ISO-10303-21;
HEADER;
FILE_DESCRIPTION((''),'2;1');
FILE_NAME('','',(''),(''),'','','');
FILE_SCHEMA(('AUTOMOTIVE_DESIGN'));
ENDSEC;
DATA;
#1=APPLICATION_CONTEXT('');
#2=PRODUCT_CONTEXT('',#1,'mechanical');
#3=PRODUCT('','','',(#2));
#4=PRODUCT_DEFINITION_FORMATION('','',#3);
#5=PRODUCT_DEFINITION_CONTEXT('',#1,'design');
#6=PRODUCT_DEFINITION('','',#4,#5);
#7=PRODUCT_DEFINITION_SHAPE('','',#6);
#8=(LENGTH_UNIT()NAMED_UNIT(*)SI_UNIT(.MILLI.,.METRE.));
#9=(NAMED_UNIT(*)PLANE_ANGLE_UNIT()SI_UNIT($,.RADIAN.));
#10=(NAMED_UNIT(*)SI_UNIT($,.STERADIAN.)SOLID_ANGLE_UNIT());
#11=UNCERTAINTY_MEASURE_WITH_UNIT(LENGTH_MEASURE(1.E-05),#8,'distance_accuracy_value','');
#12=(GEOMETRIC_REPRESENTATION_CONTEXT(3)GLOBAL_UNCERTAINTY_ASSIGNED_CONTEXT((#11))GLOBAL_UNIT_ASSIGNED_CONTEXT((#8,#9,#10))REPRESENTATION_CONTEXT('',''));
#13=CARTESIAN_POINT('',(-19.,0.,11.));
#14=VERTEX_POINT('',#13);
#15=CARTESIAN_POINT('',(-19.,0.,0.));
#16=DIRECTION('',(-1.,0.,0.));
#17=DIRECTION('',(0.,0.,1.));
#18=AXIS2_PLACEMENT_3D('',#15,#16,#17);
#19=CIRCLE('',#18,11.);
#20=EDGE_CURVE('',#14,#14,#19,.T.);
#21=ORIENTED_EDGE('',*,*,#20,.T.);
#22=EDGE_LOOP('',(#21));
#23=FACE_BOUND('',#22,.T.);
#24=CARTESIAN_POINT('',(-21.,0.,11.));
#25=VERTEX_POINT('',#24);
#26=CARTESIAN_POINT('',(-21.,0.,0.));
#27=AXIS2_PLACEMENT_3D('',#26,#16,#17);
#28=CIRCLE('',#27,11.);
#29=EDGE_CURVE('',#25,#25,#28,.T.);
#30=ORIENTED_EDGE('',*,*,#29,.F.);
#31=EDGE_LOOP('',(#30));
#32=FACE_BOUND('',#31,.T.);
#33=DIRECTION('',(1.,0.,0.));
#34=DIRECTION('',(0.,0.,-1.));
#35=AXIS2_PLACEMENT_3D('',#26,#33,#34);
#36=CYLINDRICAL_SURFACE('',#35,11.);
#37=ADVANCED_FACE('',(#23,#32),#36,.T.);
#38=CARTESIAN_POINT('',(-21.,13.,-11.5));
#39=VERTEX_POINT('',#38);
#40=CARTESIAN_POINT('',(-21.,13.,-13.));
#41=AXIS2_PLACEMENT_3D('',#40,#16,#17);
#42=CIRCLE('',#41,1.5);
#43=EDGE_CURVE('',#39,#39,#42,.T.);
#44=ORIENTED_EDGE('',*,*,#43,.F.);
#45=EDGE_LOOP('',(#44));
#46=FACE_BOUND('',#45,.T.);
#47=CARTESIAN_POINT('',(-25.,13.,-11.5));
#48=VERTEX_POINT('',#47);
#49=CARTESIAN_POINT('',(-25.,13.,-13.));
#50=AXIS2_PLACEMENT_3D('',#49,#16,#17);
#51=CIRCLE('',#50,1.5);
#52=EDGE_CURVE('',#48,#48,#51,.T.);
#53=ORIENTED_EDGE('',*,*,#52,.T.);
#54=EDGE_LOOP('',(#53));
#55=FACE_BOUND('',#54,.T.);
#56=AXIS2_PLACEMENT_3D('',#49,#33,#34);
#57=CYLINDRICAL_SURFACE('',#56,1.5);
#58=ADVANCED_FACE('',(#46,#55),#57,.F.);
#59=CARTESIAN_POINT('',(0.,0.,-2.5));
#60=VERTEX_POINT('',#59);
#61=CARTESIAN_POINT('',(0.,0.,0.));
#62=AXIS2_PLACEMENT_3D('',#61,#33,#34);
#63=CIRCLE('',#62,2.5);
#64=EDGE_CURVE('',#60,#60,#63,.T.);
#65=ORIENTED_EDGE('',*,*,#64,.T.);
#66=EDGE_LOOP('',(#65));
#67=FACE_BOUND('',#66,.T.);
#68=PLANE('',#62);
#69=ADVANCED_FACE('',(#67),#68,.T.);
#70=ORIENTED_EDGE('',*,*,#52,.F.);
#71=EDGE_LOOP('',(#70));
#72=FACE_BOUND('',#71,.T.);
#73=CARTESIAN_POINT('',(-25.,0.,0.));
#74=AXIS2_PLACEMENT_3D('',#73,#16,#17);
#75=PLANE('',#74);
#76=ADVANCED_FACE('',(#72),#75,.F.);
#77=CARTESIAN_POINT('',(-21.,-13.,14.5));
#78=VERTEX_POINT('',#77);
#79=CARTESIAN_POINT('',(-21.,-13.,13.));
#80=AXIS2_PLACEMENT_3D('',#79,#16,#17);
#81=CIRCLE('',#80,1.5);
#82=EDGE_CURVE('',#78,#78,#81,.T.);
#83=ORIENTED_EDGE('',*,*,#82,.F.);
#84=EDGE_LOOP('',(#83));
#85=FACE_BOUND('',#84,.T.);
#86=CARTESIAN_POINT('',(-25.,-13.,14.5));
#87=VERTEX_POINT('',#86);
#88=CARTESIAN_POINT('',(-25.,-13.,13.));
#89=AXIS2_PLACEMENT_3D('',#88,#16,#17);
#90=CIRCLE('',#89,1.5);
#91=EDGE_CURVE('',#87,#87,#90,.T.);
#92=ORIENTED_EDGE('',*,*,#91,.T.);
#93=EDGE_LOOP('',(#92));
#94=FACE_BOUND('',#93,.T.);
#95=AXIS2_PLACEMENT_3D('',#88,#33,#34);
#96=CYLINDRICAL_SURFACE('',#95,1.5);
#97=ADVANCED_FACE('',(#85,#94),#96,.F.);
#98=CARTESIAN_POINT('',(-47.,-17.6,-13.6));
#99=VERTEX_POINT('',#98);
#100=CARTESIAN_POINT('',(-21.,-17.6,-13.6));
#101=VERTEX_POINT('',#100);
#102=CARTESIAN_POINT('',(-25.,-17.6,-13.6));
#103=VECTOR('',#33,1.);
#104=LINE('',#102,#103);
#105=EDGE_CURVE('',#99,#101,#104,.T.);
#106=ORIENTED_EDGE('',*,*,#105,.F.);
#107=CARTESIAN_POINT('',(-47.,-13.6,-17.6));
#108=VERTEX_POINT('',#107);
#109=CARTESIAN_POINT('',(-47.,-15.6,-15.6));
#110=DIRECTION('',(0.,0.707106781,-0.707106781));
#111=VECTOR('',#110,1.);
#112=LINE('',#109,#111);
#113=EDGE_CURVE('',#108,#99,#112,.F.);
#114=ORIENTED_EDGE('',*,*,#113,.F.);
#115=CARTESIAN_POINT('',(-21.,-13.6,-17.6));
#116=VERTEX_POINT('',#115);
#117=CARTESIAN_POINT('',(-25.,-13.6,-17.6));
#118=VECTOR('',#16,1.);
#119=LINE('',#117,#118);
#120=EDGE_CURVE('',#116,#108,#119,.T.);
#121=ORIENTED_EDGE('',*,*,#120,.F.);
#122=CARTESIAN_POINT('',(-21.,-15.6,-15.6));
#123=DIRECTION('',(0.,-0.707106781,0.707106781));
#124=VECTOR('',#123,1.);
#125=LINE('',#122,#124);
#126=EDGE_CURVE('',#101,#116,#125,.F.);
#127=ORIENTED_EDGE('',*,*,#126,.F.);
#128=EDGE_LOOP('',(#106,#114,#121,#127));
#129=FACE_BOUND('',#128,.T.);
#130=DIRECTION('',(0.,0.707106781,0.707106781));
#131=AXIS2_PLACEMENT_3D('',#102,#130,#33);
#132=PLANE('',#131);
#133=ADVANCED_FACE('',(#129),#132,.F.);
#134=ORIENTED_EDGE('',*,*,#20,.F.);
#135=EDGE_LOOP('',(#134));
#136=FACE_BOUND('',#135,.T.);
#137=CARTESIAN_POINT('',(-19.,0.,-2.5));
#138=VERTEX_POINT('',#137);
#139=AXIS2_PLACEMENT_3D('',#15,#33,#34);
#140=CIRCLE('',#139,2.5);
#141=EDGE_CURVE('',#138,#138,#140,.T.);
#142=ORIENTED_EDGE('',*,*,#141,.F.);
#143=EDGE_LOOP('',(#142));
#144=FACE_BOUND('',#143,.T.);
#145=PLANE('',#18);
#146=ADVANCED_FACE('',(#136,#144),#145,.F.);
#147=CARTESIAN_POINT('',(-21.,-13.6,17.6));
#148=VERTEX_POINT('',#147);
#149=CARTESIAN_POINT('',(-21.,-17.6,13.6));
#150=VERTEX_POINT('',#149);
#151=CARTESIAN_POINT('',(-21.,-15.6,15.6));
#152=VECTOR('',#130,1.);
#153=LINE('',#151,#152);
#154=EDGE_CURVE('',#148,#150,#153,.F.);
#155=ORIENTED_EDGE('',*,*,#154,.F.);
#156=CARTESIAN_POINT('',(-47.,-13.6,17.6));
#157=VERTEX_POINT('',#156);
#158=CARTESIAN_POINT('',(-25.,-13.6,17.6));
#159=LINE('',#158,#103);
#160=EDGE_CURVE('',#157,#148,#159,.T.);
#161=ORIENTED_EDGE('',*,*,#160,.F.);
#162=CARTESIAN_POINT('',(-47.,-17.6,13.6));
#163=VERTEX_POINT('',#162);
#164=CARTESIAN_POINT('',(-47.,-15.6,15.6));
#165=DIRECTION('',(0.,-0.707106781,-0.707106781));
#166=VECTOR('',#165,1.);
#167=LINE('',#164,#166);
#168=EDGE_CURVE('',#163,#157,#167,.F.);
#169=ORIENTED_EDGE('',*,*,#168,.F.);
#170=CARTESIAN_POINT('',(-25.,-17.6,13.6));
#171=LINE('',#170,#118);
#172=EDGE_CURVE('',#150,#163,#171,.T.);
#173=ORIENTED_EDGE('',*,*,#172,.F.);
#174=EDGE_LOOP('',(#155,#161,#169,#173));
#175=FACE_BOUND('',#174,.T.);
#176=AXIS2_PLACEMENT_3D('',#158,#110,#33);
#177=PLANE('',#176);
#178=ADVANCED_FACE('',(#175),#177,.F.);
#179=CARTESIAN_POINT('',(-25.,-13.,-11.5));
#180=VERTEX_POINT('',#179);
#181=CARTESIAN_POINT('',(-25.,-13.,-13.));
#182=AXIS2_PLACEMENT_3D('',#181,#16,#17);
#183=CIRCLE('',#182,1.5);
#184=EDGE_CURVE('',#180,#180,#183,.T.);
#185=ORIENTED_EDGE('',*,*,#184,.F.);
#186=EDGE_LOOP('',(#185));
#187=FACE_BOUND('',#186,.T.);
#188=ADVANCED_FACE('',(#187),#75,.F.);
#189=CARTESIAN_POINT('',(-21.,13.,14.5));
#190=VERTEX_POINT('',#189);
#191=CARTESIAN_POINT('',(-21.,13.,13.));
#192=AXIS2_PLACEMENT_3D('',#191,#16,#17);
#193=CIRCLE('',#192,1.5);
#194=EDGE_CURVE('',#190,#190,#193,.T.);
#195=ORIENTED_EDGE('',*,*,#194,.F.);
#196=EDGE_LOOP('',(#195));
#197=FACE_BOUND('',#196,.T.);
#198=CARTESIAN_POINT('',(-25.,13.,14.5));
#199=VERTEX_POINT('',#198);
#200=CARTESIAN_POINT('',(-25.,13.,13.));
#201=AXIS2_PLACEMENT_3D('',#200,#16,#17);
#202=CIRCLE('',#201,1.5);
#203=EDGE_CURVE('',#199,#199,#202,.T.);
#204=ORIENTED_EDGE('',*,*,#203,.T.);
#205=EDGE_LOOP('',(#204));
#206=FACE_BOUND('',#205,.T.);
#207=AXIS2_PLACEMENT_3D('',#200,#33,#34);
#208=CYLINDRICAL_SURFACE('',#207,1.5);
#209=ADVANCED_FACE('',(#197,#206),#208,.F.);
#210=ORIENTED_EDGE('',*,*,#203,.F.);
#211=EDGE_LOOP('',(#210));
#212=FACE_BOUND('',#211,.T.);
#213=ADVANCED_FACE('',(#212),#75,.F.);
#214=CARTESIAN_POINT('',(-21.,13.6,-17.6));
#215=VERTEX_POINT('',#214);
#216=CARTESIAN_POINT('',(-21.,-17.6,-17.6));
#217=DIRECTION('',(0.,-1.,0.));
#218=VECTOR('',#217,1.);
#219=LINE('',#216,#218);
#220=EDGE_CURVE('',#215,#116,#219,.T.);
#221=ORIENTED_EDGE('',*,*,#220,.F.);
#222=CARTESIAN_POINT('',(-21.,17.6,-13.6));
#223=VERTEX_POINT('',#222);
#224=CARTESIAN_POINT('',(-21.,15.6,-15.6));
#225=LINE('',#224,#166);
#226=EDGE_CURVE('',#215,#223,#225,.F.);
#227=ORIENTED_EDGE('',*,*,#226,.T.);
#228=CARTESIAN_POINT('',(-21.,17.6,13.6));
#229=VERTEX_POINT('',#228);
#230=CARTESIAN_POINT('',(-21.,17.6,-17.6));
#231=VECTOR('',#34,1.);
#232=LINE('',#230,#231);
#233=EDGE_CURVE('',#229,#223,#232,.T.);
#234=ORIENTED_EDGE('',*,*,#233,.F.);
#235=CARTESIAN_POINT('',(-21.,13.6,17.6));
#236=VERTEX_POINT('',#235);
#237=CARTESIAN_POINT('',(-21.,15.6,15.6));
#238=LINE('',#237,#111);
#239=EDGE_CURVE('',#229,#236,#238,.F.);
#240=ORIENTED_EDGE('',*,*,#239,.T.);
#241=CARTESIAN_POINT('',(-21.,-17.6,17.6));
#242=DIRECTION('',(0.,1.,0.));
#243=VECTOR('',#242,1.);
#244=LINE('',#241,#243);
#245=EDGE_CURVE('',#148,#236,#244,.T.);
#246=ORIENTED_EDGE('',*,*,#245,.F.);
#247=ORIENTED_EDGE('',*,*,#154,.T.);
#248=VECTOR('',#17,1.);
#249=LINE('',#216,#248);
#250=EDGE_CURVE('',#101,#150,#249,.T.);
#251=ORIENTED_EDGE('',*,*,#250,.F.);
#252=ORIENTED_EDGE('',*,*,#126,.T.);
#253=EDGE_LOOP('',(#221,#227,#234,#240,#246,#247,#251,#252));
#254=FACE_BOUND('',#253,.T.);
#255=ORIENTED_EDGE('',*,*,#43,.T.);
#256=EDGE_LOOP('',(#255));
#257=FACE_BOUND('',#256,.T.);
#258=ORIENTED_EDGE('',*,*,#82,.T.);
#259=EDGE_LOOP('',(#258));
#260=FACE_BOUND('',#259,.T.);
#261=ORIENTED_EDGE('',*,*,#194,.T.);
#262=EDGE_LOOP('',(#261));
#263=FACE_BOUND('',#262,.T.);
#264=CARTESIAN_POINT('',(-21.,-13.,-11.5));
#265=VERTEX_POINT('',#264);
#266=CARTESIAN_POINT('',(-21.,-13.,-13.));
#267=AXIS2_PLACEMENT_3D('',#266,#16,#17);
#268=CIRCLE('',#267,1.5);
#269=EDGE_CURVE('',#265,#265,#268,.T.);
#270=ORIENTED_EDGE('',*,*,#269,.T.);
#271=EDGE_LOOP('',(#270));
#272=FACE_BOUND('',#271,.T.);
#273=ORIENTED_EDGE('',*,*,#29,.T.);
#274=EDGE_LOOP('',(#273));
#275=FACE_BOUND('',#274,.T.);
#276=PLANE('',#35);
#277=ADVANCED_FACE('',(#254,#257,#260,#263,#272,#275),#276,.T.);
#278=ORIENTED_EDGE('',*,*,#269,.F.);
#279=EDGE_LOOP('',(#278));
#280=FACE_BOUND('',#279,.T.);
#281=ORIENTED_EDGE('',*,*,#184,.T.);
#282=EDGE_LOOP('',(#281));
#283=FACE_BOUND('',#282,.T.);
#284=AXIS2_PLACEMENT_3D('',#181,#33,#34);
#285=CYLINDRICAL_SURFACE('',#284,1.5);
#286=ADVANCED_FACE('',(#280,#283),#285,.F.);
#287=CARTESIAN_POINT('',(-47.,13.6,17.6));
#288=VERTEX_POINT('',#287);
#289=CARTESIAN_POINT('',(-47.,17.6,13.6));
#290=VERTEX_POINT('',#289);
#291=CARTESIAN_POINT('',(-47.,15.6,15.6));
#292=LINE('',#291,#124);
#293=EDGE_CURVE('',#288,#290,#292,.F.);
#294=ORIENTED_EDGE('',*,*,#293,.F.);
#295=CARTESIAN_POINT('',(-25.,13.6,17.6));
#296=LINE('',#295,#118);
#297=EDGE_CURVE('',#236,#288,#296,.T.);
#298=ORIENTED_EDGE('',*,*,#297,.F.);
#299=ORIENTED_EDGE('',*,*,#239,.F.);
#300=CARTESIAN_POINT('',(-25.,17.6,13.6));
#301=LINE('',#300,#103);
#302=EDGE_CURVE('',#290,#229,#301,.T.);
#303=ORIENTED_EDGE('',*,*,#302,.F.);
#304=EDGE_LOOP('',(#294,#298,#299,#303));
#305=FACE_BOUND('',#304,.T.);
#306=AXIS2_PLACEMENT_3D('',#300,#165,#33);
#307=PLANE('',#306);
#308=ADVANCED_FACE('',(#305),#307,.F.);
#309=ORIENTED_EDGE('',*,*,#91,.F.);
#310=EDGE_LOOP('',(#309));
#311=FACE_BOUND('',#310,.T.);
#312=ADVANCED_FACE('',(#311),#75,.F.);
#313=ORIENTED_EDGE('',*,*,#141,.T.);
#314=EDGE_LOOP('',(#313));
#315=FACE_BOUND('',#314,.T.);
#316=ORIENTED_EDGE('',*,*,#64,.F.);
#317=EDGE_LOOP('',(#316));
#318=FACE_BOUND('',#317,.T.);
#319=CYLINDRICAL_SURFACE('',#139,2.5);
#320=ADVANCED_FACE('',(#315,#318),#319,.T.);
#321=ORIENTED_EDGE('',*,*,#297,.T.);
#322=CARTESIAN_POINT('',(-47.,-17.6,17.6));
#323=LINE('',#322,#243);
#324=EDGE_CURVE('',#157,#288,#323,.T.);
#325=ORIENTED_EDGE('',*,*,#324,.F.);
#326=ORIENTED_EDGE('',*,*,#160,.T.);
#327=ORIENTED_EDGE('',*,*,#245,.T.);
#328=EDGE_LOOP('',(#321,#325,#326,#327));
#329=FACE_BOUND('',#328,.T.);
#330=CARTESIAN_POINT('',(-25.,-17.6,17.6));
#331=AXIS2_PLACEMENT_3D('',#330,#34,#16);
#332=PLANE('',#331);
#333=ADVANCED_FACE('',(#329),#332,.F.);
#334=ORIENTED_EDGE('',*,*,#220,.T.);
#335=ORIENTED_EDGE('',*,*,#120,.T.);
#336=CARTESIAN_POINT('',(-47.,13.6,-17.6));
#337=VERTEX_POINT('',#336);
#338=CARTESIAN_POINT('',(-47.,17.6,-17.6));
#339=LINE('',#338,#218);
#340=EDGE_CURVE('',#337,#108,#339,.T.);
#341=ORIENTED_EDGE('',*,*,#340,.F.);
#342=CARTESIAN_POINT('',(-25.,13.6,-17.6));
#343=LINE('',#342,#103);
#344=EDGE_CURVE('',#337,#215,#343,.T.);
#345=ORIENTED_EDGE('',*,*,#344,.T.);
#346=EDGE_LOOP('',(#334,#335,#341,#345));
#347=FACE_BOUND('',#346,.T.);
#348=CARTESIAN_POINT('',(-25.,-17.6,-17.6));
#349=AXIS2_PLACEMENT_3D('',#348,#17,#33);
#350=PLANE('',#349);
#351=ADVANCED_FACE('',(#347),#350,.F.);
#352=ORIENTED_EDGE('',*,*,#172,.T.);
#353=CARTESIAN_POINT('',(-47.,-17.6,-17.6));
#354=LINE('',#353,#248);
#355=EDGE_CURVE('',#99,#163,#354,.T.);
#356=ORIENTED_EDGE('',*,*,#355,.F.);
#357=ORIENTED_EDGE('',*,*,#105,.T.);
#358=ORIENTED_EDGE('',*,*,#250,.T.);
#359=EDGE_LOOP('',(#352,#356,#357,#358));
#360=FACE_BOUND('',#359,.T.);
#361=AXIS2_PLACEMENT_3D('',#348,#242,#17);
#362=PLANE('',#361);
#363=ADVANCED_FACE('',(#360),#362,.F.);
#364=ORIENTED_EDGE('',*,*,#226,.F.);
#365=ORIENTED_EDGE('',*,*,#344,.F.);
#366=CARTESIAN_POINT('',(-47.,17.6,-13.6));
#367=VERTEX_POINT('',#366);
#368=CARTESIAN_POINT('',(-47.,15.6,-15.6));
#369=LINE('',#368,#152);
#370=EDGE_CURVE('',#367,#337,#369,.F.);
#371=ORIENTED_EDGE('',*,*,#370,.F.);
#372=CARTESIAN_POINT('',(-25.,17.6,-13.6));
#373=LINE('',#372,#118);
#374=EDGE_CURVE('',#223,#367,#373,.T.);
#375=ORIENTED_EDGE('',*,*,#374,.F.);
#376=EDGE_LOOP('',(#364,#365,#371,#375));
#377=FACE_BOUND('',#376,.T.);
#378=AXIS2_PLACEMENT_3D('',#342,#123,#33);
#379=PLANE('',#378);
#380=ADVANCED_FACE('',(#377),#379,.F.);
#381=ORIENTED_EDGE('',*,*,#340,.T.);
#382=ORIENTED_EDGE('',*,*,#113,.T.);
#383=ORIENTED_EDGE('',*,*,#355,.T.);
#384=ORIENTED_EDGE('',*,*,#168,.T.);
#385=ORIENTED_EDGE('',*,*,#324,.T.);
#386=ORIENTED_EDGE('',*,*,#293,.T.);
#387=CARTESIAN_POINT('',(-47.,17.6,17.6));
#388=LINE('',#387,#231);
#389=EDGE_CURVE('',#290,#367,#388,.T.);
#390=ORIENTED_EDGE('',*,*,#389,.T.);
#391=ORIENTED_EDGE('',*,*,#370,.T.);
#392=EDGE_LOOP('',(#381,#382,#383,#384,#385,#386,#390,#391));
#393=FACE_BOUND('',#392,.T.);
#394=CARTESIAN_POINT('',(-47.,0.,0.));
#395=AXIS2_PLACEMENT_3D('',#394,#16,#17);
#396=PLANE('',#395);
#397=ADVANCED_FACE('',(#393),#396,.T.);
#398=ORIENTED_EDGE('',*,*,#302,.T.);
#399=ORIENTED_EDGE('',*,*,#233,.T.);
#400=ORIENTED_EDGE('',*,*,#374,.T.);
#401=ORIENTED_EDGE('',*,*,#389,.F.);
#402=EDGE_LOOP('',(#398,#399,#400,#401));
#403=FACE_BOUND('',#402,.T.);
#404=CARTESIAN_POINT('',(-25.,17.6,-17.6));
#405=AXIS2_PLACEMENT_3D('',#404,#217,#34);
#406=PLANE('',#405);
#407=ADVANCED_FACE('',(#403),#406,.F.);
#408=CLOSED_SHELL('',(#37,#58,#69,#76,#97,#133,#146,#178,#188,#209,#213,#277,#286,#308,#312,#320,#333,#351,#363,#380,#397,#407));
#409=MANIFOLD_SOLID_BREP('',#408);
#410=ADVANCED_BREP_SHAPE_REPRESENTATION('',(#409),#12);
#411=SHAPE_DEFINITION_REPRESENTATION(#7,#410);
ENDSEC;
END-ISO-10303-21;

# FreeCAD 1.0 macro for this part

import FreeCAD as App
import Part
import Sketcher
from FreeCAD import Vector


def edges_at(feature, points):
    """Names of the edges that pass closest to the given points."""
    edges = feature.Shape.Edges
    near = lambda p: min(range(len(edges)), key=lambda i: edges[i].distToShape(Part.Vertex(*p))[0])
    return sorted({f"Edge{near(p) + 1}" for p in points})


def add_polygon(sketch, points):
    """Adds a closed chain of lines whose ends are joined by coincident constraints."""
    first, n = sketch.GeometryCount, len(points)
    for a, b in zip(points, points[1:] + points[:1]):
        sketch.addGeometry(Part.LineSegment(App.Vector(*a, 0), App.Vector(*b, 0)), False)
    for i in range(n):
        sketch.addConstraint(Sketcher.Constraint("Coincident", first + i, 2, first + (i + 1) % n, 1))

doc = App.newDocument("Part")
body = doc.addObject("PartDesign::Body", "Body")

# Sketch on YZ plane
sketch1 = body.newObject("Sketcher::SketchObject", "Sketch")
sketch1.AttachmentSupport = (doc.getObject("YZ_Plane"), [""])
sketch1.MapMode = "FlatFace"
sketch1.addGeometry(Part.Circle(Vector(0, 0, 0), Vector(0, 0, 1), 2.5), False)
sketch1.addConstraint(Sketcher.Constraint("Coincident", 0, 3, -1, 1))
sketch1.addConstraint(Sketcher.Constraint("Diameter", 0, 5.0))
pad1 = body.newObject("PartDesign::Pad", "Pad")
pad1.Profile = sketch1
pad1.Length = 19
pad1.Reversed = True

# Sketch on YZ plane
sketch2 = body.newObject("Sketcher::SketchObject", "Sketch001")
sketch2.AttachmentSupport = (doc.getObject("YZ_Plane"), [""])
sketch2.MapMode = "FlatFace"
sketch2.AttachmentOffset = App.Placement(Vector(0, 0, -19), App.Rotation())
sketch2.addGeometry(Part.Circle(Vector(0, 0, 0), Vector(0, 0, 1), 11), False)
sketch2.addConstraint(Sketcher.Constraint("Coincident", 0, 3, -1, 1))
sketch2.addConstraint(Sketcher.Constraint("Diameter", 0, 22.0))
pad2 = body.newObject("PartDesign::Pad", "Pad001")
pad2.Profile = sketch2
pad2.Length = 2
pad2.Reversed = True

# Sketch on YZ plane
sketch3 = body.newObject("Sketcher::SketchObject", "Sketch002")
sketch3.AttachmentSupport = (doc.getObject("YZ_Plane"), [""])
sketch3.MapMode = "FlatFace"
sketch3.AttachmentOffset = App.Placement(Vector(0, 0, -21), App.Rotation())
add_polygon(sketch3, [(17.6, -17.6), (-17.6, -17.6), (-17.6, 17.6), (17.6, 17.6)])  # lines 0-3
sketch3.addGeometry(Part.Circle(Vector(-13, -13, 0), Vector(0, 0, 1), 1.5), False)  # 4
sketch3.addGeometry(Part.Circle(Vector(-13, 13, 0), Vector(0, 0, 1), 1.5), False)  # 5
sketch3.addGeometry(Part.Circle(Vector(13, -13, 0), Vector(0, 0, 1), 1.5), False)  # 6
sketch3.addGeometry(Part.Circle(Vector(13, 13, 0), Vector(0, 0, 1), 1.5), False)  # 7
sketch3.addConstraint(Sketcher.Constraint("Horizontal", 0))
sketch3.addConstraint(Sketcher.Constraint("Vertical", 1))
sketch3.addConstraint(Sketcher.Constraint("Horizontal", 2))
sketch3.addConstraint(Sketcher.Constraint("Vertical", 3))
sketch3.addConstraint(Sketcher.Constraint("Equal", 4, 5))
sketch3.addConstraint(Sketcher.Constraint("Equal", 5, 6))
sketch3.addConstraint(Sketcher.Constraint("Equal", 6, 7))
sketch3.addConstraint(Sketcher.Constraint("Symmetric", 5, 3, 6, 3, -1, 1))
sketch3.addConstraint(Sketcher.Constraint("Symmetric", 4, 3, 7, 3, -1, 1))
sketch3.addConstraint(Sketcher.Constraint("Symmetric", 0, 2, 2, 2, -1, 1))
sketch3.addConstraint(Sketcher.Constraint("Symmetric", 4, 3, 6, 3, -2))
sketch3.addConstraint(Sketcher.Constraint("Equal", 2, 1))
sketch3.addConstraint(Sketcher.Constraint("Diameter", 4, 3.0))
sketch3.addConstraint(Sketcher.Constraint("DistanceX", 0, 2, 0, 1, 35.2))
sketch3.addConstraint(Sketcher.Constraint("DistanceX", 4, 3, -1, 1, 13.0))
sketch3.addConstraint(Sketcher.Constraint("DistanceY", 4, 3, -1, 1, 13.0))
pad3 = body.newObject("PartDesign::Pad", "Pad002")
pad3.Profile = sketch3
pad3.Length = 4
pad3.Reversed = True

# Sketch on YZ plane
sketch4 = body.newObject("Sketcher::SketchObject", "Sketch003")
sketch4.AttachmentSupport = (doc.getObject("YZ_Plane"), [""])
sketch4.MapMode = "FlatFace"
sketch4.AttachmentOffset = App.Placement(Vector(0, 0, -25), App.Rotation())
add_polygon(sketch4, [(17.6, -17.6), (-17.6, -17.6), (-17.6, 17.6), (17.6, 17.6)])  # lines 0-3
sketch4.addConstraint(Sketcher.Constraint("Horizontal", 0))
sketch4.addConstraint(Sketcher.Constraint("Vertical", 1))
sketch4.addConstraint(Sketcher.Constraint("Horizontal", 2))
sketch4.addConstraint(Sketcher.Constraint("Vertical", 3))
sketch4.addConstraint(Sketcher.Constraint("Symmetric", 0, 2, 2, 2, -1, 1))
sketch4.addConstraint(Sketcher.Constraint("Equal", 2, 1))
sketch4.addConstraint(Sketcher.Constraint("DistanceX", 0, 2, 0, 1, 35.2))
pad4 = body.newObject("PartDesign::Pad", "Pad003")
pad4.Profile = sketch4
pad4.Length = 22
pad4.Reversed = True
doc.recompute()

chamfer = body.newObject("PartDesign::Chamfer", "Chamfer")
chamfer.Base = (pad4, edges_at(pad4, [
    (-34, -17.6, 17.6),
    (-34, 17.6, 17.6),
    (-34, 17.6, -17.6),
    (-34, -17.6, -17.6),
]))
chamfer.Size = 4

doc.recompute()
